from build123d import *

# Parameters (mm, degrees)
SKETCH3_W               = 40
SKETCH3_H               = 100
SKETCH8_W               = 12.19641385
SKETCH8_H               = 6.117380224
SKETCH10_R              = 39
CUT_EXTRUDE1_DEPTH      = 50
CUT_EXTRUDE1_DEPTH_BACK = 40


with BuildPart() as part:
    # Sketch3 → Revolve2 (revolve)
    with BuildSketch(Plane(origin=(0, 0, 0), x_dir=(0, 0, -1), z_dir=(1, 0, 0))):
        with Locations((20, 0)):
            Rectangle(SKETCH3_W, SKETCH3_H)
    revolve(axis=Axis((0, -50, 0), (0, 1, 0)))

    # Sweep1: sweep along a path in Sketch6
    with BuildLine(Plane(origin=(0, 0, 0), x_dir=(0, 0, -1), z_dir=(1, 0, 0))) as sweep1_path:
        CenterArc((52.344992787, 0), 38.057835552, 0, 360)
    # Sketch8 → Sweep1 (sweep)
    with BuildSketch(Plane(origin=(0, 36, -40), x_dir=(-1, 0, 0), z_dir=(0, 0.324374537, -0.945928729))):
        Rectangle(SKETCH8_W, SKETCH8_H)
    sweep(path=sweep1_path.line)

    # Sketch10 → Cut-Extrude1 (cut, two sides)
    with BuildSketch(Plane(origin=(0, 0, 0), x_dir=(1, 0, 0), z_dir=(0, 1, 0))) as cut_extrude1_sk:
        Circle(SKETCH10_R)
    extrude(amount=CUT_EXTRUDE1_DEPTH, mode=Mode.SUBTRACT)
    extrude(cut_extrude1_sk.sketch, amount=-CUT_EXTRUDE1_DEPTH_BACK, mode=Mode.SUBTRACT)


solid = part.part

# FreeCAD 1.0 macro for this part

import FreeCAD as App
import Part
import Sketcher
from FreeCAD import Vector
Q = App.Units.Quantity


def add_polygon(sketch, points):
    """Adds a closed chain of lines whose ends are joined by coincident constraints."""
    first, n = sketch.GeometryCount, len(points)
    for a, b in zip(points, points[1:] + points[:1]):
        sketch.addGeometry(Part.LineSegment(App.Vector(*a, 0), App.Vector(*b, 0)), False)
    for i in range(n):
        sketch.addConstraint(Sketcher.Constraint("Coincident", first + i, 2, first + (i + 1) % n, 1))

doc = App.newDocument("Part")
params = doc.addObject("Spreadsheet::Sheet", "Params")
for row, (alias, value) in enumerate([
    ("sketch1_width", "100 mm"),
    ("sketch1_height", "40 mm"),
    ("revolution_angle", "360 deg"),
    ("sketch4_diameter", "78 mm"),
    ("pocket1_length", "50 mm"),
    ("pocket1_length2", "40 mm"),
], start=1):
    params.set(f"A{row}", alias)
    params.set(f"B{row}", "=" + value)
    params.setAlias(f"B{row}", alias)

body = doc.addObject("PartDesign::Body", "Body")

# Sketch on YZ plane
sketch1 = doc.addObject("Sketcher::SketchObject", "Sketch")
body.addObject(sketch1)
sketch1.AttachmentSupport = (doc.YZ_Plane, [""])
sketch1.MapMode = "FlatFace"
add_polygon(sketch1, [(50, 0), (-50, 0), (-50, -40), (50, -40)])  # lines 0-3
sketch1.addConstraint([
    Sketcher.Constraint("Horizontal", 0),
    Sketcher.Constraint("Vertical", 1),
    Sketcher.Constraint("Horizontal", 2),
    Sketcher.Constraint("Vertical", 3),
    Sketcher.Constraint("Symmetric", 0, 2, 3, 2, -1, 1),
    Sketcher.Constraint("DistanceX", 0, 2, 0, 1, Q("100 mm")),
    Sketcher.Constraint("DistanceY", 1, 2, 1, 1, Q("40 mm")),
])
sketch1.setExpression("Constraints[9]", "Params.sketch1_width")
sketch1.setExpression("Constraints[10]", "Params.sketch1_height")
revolution = doc.addObject("PartDesign::Revolution", "Revolution")
body.addObject(revolution)
revolution.Profile = sketch1
revolution.ReferenceAxis = (sketch1, ["H_Axis"])
revolution.setExpression("Angle", "Params.revolution_angle")

# Sketch on an angled plane
sketch2 = doc.addObject("Sketcher::SketchObject", "Sketch001")
body.addObject(sketch2)
sketch2.Placement = App.Placement(Vector(0, 36, -40), App.Rotation(Vector(-1, 0, 0), Vector(0, 0.945928729, 0.324374537), Vector(0, 0.324374537, -0.945928729), "ZXY"))
add_polygon(sketch2, [(-6.098207, 3.05869), (-6.098207, -3.05869), (6.098207, -3.05869), (6.098207, 3.05869)])  # lines 0-3
sketch2.addConstraint([
    Sketcher.Constraint("Vertical", 0),
    Sketcher.Constraint("Horizontal", 1),
    Sketcher.Constraint("Vertical", 2),
    Sketcher.Constraint("Horizontal", 3),
    Sketcher.Constraint("Symmetric", 0, 2, 2, 2, -1, 1),
    Sketcher.Constraint("DistanceY", 0, 2, 0, 1, Q("6.11738 mm")),
    Sketcher.Constraint("DistanceX", 1, 1, 1, 2, Q("12.196414 mm")),
])

# Sketch on YZ plane
sketch3 = doc.addObject("Sketcher::SketchObject", "Sketch002")
body.addObject(sketch3)
sketch3.AttachmentSupport = (doc.YZ_Plane, [""])
sketch3.MapMode = "FlatFace"
sketch3.addGeometry(Part.Circle(Vector(0, -52.344993, 0), Vector(0, 0, 1), 38.057836), False)
sketch3.addConstraint([
    Sketcher.Constraint("PointOnObject", 0, 3, -2),
    Sketcher.Constraint("Diameter", 0, Q("76.115671 mm")),
    Sketcher.Constraint("DistanceY", 0, 3, -1, 1, Q("52.344993 mm")),
])
doc.recompute()

additivepipe = doc.addObject("PartDesign::AdditivePipe", "AdditivePipe")
body.addObject(additivepipe)
additivepipe.Profile = sketch2
additivepipe.Spine = (sketch3, ["Edge1"])

# Sketch on XZ plane
sketch4 = doc.addObject("Sketcher::SketchObject", "Sketch003")
body.addObject(sketch4)
sketch4.AttachmentSupport = (doc.XZ_Plane, [""])
sketch4.MapMode = "FlatFace"
sketch4.addGeometry(Part.Circle(Vector(0, 0, 0), Vector(0, 0, 1), 39), False)
sketch4.addConstraint([
    Sketcher.Constraint("Coincident", 0, 3, -1, 1),
    Sketcher.Constraint("Diameter", 0, Q("78 mm")),
])
sketch4.setExpression("Constraints[1]", "Params.sketch4_diameter")
pocket1 = doc.addObject("PartDesign::Pocket", "Pocket")
body.addObject(pocket1)
pocket1.Profile = sketch4
pocket1.Type = "TwoLengths"
pocket1.setExpression("Length", "Params.pocket1_length")
pocket1.setExpression("Length2", "Params.pocket1_length2")

doc.recompute()
